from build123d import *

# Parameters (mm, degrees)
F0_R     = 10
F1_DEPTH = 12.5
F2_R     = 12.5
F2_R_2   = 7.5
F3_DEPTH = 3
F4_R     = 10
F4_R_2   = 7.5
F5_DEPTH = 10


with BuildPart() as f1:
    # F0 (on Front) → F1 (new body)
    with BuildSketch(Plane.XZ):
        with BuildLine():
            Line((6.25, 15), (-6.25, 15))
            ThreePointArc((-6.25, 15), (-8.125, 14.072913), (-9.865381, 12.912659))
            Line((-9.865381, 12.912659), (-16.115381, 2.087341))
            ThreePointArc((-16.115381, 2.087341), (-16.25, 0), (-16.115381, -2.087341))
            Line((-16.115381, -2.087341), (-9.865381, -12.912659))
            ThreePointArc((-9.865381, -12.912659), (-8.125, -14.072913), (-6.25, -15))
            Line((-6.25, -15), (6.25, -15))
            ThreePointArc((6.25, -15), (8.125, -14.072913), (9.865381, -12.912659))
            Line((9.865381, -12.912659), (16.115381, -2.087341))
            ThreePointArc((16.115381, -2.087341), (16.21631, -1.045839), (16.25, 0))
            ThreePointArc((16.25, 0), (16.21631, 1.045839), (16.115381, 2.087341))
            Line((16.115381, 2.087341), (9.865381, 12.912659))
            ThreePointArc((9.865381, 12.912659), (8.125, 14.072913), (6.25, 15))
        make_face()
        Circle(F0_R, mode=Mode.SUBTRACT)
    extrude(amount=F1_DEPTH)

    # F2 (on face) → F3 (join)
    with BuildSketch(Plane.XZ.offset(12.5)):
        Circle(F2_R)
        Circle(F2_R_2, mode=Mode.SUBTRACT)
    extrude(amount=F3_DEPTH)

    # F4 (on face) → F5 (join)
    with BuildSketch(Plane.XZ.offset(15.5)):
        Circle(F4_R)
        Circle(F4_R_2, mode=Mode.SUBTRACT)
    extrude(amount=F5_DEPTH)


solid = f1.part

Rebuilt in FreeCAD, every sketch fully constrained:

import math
import FreeCAD as App
import Part
import Sketcher
Q = App.Units.Quantity

doc = App.newDocument("Part")
body = doc.addObject("PartDesign::Body", "Body")

# Sketch on XZ plane
sketch1 = body.newObject("Sketcher::SketchObject", "Sketch")
sketch1.AttachmentSupport = (doc.getObject("XZ_Plane"), [""])
sketch1.MapMode = "FlatFace"
sketch1.addGeometry(Part.LineSegment(App.Vector(6.25, 15, 0), App.Vector(-6.25, 15, 0)), False)
sketch1.addGeometry(Part.ArcOfCircle(Part.Circle(App.Vector(-0.000006, 0.000009, 0), App.Vector(0, 0, 1), 16.249989), math.radians(112.619858), math.radians(127.380137)), False)
sketch1.addGeometry(Part.LineSegment(App.Vector(-9.865381, 12.912659, 0), App.Vector(-16.115381, 2.087341, 0)), False)
sketch1.addGeometry(Part.ArcOfCircle(Part.Circle(App.Vector(-0.00001, 0, 0), App.Vector(0, 0, 1), 16.24999), math.radians(172.619861), math.radians(187.380139)), False)
sketch1.addGeometry(Part.LineSegment(App.Vector(-16.115381, -2.087341, 0), App.Vector(-9.865381, -12.912659, 0)), False)
sketch1.addGeometry(Part.ArcOfCircle(Part.Circle(App.Vector(-0.000006, -0.000009, 0), App.Vector(0, 0, 1), 16.249989), math.radians(-127.380137), math.radians(-112.619858)), False)
sketch1.addGeometry(Part.LineSegment(App.Vector(-6.25, -15, 0), App.Vector(6.25, -15, 0)), False)
sketch1.addGeometry(Part.ArcOfCircle(Part.Circle(App.Vector(0.000006, -0.000009, 0), App.Vector(0, 0, 1), 16.249989), math.radians(-67.380142), math.radians(-52.619863)), False)
sketch1.addGeometry(Part.LineSegment(App.Vector(9.865381, -12.912659, 0), App.Vector(16.115381, -2.087341, 0)), False)
sketch1.addGeometry(Part.ArcOfCircle(Part.Circle(App.Vector(-0.000139, 0.00001, 0), App.Vector(0, 0, 1), 16.250139), math.radians(-7.380105), math.radians(-0.000034)), False)
sketch1.addGeometry(Part.ArcOfCircle(Part.Circle(App.Vector(-0.000139, -0.00001, 0), App.Vector(0, 0, 1), 16.250139), math.radians(0.000034), math.radians(7.380105)), False)
sketch1.addGeometry(Part.LineSegment(App.Vector(16.115381, 2.087341, 0), App.Vector(9.865381, 12.912659, 0)), False)
sketch1.addGeometry(Part.ArcOfCircle(Part.Circle(App.Vector(0.000006, 0.000009, 0), App.Vector(0, 0, 1), 16.249989), math.radians(52.619863), math.radians(67.380142)), False)
sketch1.addGeometry(Part.Circle(App.Vector(0, 0, 0), App.Vector(0, 0, 1), 10), False)
sketch1.addConstraint(Sketcher.Constraint("Coincident", 0, 2, 1, 1))
sketch1.addConstraint(Sketcher.Constraint("Coincident", 1, 2, 2, 1))
sketch1.addConstraint(Sketcher.Constraint("Coincident", 2, 2, 3, 1))
sketch1.addConstraint(Sketcher.Constraint("Coincident", 3, 2, 4, 1))
sketch1.addConstraint(Sketcher.Constraint("Coincident", 4, 2, 5, 1))
sketch1.addConstraint(Sketcher.Constraint("Coincident", 5, 2, 6, 1))
sketch1.addConstraint(Sketcher.Constraint("Coincident", 6, 2, 7, 1))
sketch1.addConstraint(Sketcher.Constraint("Coincident", 7, 2, 8, 1))
sketch1.addConstraint(Sketcher.Constraint("Coincident", 8, 2, 9, 1))
sketch1.addConstraint(Sketcher.Constraint("Coincident", 9, 2, 10, 1))
sketch1.addConstraint(Sketcher.Constraint("Coincident", 10, 2, 11, 1))
sketch1.addConstraint(Sketcher.Constraint("Coincident", 11, 2, 12, 1))
sketch1.addConstraint(Sketcher.Constraint("Coincident", 12, 2, 0, 1))
sketch1.addConstraint(Sketcher.Constraint("Horizontal", 0))
sketch1.addConstraint(Sketcher.Constraint("Horizontal", 6))
sketch1.addConstraint(Sketcher.Constraint("Coincident", 13, 3, -1, 1))
sketch1.addConstraint(Sketcher.Constraint("PointOnObject", 3, 3, -1))
sketch1.addConstraint(Sketcher.Constraint("PointOnObject", 9, 2, -1))
sketch1.addConstraint(Sketcher.Constraint("Diameter", 13, Q("20 mm")))
sketch1.addConstraint(Sketcher.Constraint("DistanceX", 0, 2, 0, 1, Q("12.5 mm")))
sketch1.addConstraint(Sketcher.Constraint("DistanceX", 6, 1, 6, 2, Q("12.5 mm")))
sketch1.addConstraint(Sketcher.Constraint("DistanceY", -1, 1, 0, 2, Q("15 mm")))
sketch1.addConstraint(Sketcher.Constraint("DistanceY", 5, 2, -1, 1, Q("15 mm")))
sketch1.addConstraint(Sketcher.Constraint("Distance", 2, Q("12.5 mm")))
sketch1.addConstraint(Sketcher.Constraint("Distance", 4, Q("12.5 mm")))
sketch1.addConstraint(Sketcher.Constraint("Distance", 8, Q("12.5 mm")))
sketch1.addConstraint(Sketcher.Constraint("Distance", 11, Q("12.5 mm")))
sketch1.addConstraint(Sketcher.Constraint("DistanceX", 0, 2, -1, 1, Q("6.25 mm")))
sketch1.addConstraint(Sketcher.Constraint("DistanceX", 5, 2, -1, 1, Q("6.25 mm")))
sketch1.addConstraint(Sketcher.Constraint("DistanceX", -1, 1, 9, 2, Q("16.25 mm")))
sketch1.addConstraint(Sketcher.Constraint("Radius", 1, Q("16.249989 mm")))
sketch1.addConstraint(Sketcher.Constraint("Radius", 3, Q("16.24999 mm")))
sketch1.addConstraint(Sketcher.Constraint("Radius", 5, Q("16.249989 mm")))
sketch1.addConstraint(Sketcher.Constraint("Radius", 7, Q("16.249989 mm")))
sketch1.addConstraint(Sketcher.Constraint("Radius", 9, Q("16.250139 mm")))
sketch1.addConstraint(Sketcher.Constraint("Radius", 10, Q("16.250139 mm")))
sketch1.addConstraint(Sketcher.Constraint("Radius", 12, Q("16.249989 mm")))
sketch1.addConstraint(Sketcher.Constraint("DistanceX", 2, 2, 1, 2, Q("6.25 mm")))
sketch1.addConstraint(Sketcher.Constraint("DistanceX", 3, 2, 4, 2, Q("6.25 mm")))
sketch1.addConstraint(Sketcher.Constraint("DistanceX", 7, 2, 8, 2, Q("6.25 mm")))
sketch1.addConstraint(Sketcher.Constraint("DistanceX", 11, 2, 10, 2, Q("6.25 mm")))
sketch1.addConstraint(Sketcher.Constraint("DistanceX", 1, 2, -1, 1, Q("9.865381 mm")))
sketch1.addConstraint(Sketcher.Constraint("DistanceY", -1, 1, 1, 2, Q("12.912659 mm")))
sketch1.addConstraint(Sketcher.Constraint("DistanceX", 3, 2, -1, 1, Q("16.115381 mm")))
sketch1.addConstraint(Sketcher.Constraint("DistanceX", -1, 1, 7, 2, Q("9.865381 mm")))
sketch1.addConstraint(Sketcher.Constraint("DistanceY", 7, 2, -1, 1, Q("12.912659 mm")))
sketch1.addConstraint(Sketcher.Constraint("DistanceX", -1, 1, 10, 2, Q("16.115381 mm")))
sketch1.addConstraint(Sketcher.Constraint("DistanceY", -1, 1, 10, 2, Q("2.087341 mm")))
pad1 = body.newObject("PartDesign::Pad", "Pad")
pad1.Profile = sketch1
pad1.Length = 12.5

# Sketch on XZ plane
sketch2 = body.newObject("Sketcher::SketchObject", "Sketch001")
sketch2.AttachmentSupport = (doc.getObject("XZ_Plane"), [""])
sketch2.MapMode = "FlatFace"
sketch2.AttachmentOffset = App.Placement(App.Vector(0, 0, 12.5), App.Rotation())
sketch2.addGeometry(Part.Circle(App.Vector(0, 0, 0), App.Vector(0, 0, 1), 12.5), False)
sketch2.addGeometry(Part.Circle(App.Vector(0, 0, 0), App.Vector(0, 0, 1), 7.5), False)
sketch2.addConstraint(Sketcher.Constraint("Coincident", 0, 3, -1, 1))
sketch2.addConstraint(Sketcher.Constraint("Coincident", 1, 3, -1, 1))
sketch2.addConstraint(Sketcher.Constraint("Diameter", 0, Q("25 mm")))
sketch2.addConstraint(Sketcher.Constraint("Diameter", 1, Q("15 mm")))
pad2 = body.newObject("PartDesign::Pad", "Pad001")
pad2.Profile = sketch2
pad2.Length = 3

# Sketch on XZ plane
sketch3 = body.newObject("Sketcher::SketchObject", "Sketch002")
sketch3.AttachmentSupport = (doc.getObject("XZ_Plane"), [""])
sketch3.MapMode = "FlatFace"
sketch3.AttachmentOffset = App.Placement(App.Vector(0, 0, 15.5), App.Rotation())
sketch3.addGeometry(Part.Circle(App.Vector(0, 0, 0), App.Vector(0, 0, 1), 10), False)
sketch3.addGeometry(Part.Circle(App.Vector(0, 0, 0), App.Vector(0, 0, 1), 7.5), False)
sketch3.addConstraint(Sketcher.Constraint("Coincident", 0, 3, -1, 1))
sketch3.addConstraint(Sketcher.Constraint("Coincident", 1, 3, -1, 1))
sketch3.addConstraint(Sketcher.Constraint("Diameter", 0, Q("20 mm")))
sketch3.addConstraint(Sketcher.Constraint("Diameter", 1, Q("15 mm")))
pad3 = body.newObject("PartDesign::Pad", "Pad002")
pad3.Profile = sketch3
pad3.Length = 10

doc.recompute()
